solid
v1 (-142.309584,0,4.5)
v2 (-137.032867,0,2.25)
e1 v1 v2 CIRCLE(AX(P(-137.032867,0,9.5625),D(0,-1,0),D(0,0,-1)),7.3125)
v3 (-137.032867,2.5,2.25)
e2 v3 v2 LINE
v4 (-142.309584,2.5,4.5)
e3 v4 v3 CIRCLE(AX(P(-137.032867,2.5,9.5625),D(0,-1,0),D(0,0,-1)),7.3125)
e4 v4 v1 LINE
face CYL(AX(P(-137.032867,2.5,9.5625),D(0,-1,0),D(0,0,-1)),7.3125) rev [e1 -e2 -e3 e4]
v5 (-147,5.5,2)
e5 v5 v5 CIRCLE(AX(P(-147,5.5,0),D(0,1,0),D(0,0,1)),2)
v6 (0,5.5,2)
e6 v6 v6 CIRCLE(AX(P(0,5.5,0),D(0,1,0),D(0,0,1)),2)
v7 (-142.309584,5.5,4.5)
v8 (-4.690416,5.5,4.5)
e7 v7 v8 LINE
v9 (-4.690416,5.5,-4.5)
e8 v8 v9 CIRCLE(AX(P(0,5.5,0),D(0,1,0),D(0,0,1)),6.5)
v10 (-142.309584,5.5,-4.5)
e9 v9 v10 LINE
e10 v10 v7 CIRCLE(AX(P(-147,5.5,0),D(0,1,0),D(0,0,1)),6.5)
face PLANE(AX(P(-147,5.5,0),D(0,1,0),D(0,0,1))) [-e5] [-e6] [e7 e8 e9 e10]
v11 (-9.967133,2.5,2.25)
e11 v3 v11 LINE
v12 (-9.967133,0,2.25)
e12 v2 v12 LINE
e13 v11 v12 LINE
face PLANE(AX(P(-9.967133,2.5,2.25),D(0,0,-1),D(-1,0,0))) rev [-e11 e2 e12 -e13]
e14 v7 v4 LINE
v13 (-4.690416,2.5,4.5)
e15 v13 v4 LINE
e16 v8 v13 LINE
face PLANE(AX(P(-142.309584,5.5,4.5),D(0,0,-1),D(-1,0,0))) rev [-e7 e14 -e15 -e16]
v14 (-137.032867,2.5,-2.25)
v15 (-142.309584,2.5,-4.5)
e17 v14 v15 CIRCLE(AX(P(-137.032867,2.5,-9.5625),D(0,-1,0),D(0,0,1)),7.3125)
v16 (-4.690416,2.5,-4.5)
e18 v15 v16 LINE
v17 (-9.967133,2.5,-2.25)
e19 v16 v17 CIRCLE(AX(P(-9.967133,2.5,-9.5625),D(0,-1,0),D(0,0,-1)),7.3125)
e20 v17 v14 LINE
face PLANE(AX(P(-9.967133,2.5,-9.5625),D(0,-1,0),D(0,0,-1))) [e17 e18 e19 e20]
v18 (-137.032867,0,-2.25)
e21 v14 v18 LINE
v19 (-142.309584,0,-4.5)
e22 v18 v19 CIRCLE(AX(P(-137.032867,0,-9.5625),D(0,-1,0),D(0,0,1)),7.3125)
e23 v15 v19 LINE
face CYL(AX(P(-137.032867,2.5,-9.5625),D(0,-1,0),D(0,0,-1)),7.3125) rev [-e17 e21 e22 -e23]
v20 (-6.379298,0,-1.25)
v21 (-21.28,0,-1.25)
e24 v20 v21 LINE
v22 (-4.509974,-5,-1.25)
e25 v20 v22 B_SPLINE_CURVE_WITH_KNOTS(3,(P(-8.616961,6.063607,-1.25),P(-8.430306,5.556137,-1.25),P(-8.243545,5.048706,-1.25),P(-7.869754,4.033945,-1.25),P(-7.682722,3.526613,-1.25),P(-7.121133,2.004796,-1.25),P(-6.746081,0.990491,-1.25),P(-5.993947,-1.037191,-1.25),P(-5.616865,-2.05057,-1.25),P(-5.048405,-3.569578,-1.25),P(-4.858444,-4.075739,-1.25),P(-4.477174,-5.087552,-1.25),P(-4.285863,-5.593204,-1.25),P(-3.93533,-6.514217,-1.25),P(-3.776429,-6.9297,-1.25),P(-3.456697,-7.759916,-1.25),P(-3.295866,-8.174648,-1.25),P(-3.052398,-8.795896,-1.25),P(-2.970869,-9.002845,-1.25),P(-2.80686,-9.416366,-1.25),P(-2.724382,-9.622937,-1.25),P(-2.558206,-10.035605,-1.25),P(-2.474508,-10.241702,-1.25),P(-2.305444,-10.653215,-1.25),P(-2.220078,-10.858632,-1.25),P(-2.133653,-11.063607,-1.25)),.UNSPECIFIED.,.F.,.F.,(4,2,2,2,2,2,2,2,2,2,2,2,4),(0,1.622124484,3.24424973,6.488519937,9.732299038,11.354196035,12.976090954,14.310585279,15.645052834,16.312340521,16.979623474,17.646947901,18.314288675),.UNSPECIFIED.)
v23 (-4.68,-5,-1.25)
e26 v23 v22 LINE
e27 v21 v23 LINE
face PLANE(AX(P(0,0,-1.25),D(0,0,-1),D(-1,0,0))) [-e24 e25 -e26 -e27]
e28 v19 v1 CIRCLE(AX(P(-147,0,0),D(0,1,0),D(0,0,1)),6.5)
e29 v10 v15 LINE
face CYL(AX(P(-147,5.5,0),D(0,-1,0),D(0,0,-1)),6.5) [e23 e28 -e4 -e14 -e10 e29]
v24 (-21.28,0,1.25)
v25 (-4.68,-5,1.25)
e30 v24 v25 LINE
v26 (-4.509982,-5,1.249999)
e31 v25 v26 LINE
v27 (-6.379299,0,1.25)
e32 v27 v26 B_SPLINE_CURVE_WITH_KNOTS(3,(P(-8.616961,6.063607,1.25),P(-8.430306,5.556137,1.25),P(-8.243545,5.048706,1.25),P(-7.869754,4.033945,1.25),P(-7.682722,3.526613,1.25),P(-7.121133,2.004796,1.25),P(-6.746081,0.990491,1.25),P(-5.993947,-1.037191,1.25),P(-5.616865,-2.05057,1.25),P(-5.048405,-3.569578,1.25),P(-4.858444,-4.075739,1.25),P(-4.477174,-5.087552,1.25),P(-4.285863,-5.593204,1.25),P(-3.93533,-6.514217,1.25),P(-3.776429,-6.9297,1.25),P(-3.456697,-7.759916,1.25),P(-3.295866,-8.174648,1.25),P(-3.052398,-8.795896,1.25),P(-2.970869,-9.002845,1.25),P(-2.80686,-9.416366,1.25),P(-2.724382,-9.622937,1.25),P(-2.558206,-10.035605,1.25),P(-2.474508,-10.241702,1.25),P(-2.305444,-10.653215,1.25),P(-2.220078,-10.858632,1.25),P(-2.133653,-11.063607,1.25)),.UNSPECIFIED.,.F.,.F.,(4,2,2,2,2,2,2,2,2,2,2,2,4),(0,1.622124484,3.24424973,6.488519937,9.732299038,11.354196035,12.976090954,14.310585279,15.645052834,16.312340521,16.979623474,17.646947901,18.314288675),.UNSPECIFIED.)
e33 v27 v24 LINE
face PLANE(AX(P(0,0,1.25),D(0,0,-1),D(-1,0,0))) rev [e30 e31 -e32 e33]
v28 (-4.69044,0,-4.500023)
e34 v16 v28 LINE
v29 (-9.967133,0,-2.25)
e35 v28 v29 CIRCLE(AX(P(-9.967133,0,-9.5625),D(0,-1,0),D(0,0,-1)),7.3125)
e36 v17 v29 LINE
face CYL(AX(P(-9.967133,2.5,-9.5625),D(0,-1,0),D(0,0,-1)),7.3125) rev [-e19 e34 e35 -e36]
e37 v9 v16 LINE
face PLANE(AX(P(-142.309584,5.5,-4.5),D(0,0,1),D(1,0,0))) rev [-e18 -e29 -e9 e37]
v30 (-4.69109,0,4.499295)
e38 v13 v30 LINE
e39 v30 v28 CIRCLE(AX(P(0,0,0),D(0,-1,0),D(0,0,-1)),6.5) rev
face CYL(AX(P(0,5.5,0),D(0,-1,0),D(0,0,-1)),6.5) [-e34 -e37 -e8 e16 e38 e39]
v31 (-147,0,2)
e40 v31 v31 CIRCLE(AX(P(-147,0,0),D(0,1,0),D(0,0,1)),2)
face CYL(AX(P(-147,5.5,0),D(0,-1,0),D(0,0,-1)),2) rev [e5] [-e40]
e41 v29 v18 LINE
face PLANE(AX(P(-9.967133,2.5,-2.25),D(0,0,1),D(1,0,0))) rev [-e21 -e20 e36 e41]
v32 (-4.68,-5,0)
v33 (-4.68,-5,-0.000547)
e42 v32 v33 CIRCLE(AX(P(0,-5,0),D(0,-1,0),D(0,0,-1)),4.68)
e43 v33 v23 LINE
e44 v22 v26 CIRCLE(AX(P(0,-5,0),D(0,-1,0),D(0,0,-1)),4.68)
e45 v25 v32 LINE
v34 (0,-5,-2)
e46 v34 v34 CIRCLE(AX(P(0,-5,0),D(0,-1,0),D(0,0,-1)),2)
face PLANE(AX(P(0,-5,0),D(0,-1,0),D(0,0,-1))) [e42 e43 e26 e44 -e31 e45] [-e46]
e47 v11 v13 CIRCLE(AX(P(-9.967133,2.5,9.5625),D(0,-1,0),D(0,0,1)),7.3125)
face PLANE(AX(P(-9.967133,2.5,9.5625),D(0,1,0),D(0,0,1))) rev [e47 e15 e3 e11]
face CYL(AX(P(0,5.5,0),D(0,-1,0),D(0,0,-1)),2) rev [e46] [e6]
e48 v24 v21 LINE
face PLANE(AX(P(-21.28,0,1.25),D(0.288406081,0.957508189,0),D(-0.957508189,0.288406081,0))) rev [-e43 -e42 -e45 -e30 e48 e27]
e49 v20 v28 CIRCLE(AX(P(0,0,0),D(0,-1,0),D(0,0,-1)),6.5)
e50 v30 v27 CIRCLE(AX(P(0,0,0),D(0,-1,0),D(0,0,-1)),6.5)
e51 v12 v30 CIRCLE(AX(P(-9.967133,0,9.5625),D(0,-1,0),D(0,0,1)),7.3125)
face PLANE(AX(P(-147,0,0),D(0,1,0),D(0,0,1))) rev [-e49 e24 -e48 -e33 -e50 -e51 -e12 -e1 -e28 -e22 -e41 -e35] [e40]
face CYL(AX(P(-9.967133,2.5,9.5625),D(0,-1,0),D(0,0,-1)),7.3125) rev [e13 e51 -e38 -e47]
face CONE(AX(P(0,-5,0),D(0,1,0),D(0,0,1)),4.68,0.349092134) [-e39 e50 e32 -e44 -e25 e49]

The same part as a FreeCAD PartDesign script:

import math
import FreeCAD as App
import Part
import Sketcher
from FreeCAD import Vector
Q = App.Units.Quantity


def add_polygon(sketch, points):
    """Adds a closed chain of lines whose ends are joined by coincident constraints."""
    first, n = sketch.GeometryCount, len(points)
    for a, b in zip(points, points[1:] + points[:1]):
        sketch.addGeometry(Part.LineSegment(App.Vector(*a, 0), App.Vector(*b, 0)), False)
    for i in range(n):
        sketch.addConstraint(Sketcher.Constraint("Coincident", first + i, 2, first + (i + 1) % n, 1))

doc = App.newDocument("Part")
body = doc.addObject("PartDesign::Body", "Body")

sketch1 = body.newObject("Sketcher::SketchObject", "Sketch")
sketch1.AttachmentSupport = (doc.getObject("XZ_Plane"), [""])
sketch1.MapMode = "FlatFace"
sketch1.addGeometry(Part.LineSegment(Vector(-4.690416, -4.5, 0), Vector(-142.309584, -4.5, 0)), False)
sketch1.addGeometry(Part.ArcOfCircle(Part.Circle(Vector(-147, 0, 0), Vector(0, 0, 1), 6.5), math.radians(43.813061), math.radians(316.186939)), False)
sketch1.addGeometry(Part.LineSegment(Vector(-142.309584, 4.5, 0), Vector(-4.690416, 4.5, 0)), False)
sketch1.addGeometry(Part.ArcOfCircle(Part.Circle(Vector(0, 0, 0), Vector(0, 0, 1), 6.5), math.radians(-136.186939), math.radians(136.186939)), False)
sketch1.addGeometry(Part.Circle(Vector(0, 0, 0), Vector(0, 0, 1), 2), False)
sketch1.addGeometry(Part.Circle(Vector(-147, 0, 0), Vector(0, 0, 1), 2), False)
sketch1.addConstraint(Sketcher.Constraint("Coincident", 0, 2, 1, 2))
sketch1.addConstraint(Sketcher.Constraint("Coincident", 1, 1, 2, 1))
sketch1.addConstraint(Sketcher.Constraint("Coincident", 2, 2, 3, 2))
sketch1.addConstraint(Sketcher.Constraint("Coincident", 3, 1, 0, 1))
sketch1.addConstraint(Sketcher.Constraint("Horizontal", 0))
sketch1.addConstraint(Sketcher.Constraint("Horizontal", 2))
sketch1.addConstraint(Sketcher.Constraint("Coincident", 3, 3, -1, 1))
sketch1.addConstraint(Sketcher.Constraint("Coincident", 4, 3, -1, 1))
sketch1.addConstraint(Sketcher.Constraint("Coincident", 5, 3, 1, 3))
sketch1.addConstraint(Sketcher.Constraint("Equal", 1, 3))
sketch1.addConstraint(Sketcher.Constraint("Equal", 4, 5))
sketch1.addConstraint(Sketcher.Constraint("Symmetric", 0, 2, 1, 1, -1))
sketch1.addConstraint(Sketcher.Constraint("Diameter", 4, Q("4 mm")))
sketch1.addConstraint(Sketcher.Constraint("Radius", 1, Q("6.5 mm")))
sketch1.addConstraint(Sketcher.Constraint("DistanceX", 1, 3, -1, 1, Q("147 mm")))
sketch1.addConstraint(Sketcher.Constraint("DistanceY", 0, 2, 1, 1, Q("9 mm")))
pad1 = body.newObject("PartDesign::Pad", "Pad")
pad1.Profile = sketch1
pad1.Length = 5.5
pad1.Reversed = True

sketch2 = body.newObject("Sketcher::SketchObject", "Sketch001")
sketch2.AttachmentSupport = (doc.getObject("XZ_Plane"), [""])
sketch2.MapMode = "FlatFace"
sketch2.addGeometry(Part.LineSegment(Vector(-137.032867, 2.25, 0), Vector(-9.967133, 2.25, 0)), False)
sketch2.addGeometry(Part.ArcOfCircle(Part.Circle(Vector(-9.967133, 9.5625, 0), Vector(0, 0, 1), 7.3125), math.radians(-90), math.radians(-43.813061)), False)
sketch2.addGeometry(Part.LineSegment(Vector(-4.690416, 4.5, 0), Vector(-142.309584, 4.5, 0)), False)
sketch2.addGeometry(Part.ArcOfCircle(Part.Circle(Vector(-137.032867, 9.5625, 0), Vector(0, 0, 1), 7.3125), math.radians(-136.186939), math.radians(-90)), False)
sketch2.addGeometry(Part.LineSegment(Vector(-9.967133, -2.25, 0), Vector(-137.032867, -2.25, 0)), False)
sketch2.addGeometry(Part.ArcOfCircle(Part.Circle(Vector(-137.032867, -9.5625, 0), Vector(0, 0, 1), 7.3125), math.radians(90), math.radians(136.186939)), False)
sketch2.addGeometry(Part.LineSegment(Vector(-142.309584, -4.5, 0), Vector(-4.690416, -4.5, 0)), False)
sketch2.addGeometry(Part.ArcOfCircle(Part.Circle(Vector(-9.967133, -9.5625, 0), Vector(0, 0, 1), 7.3125), math.radians(43.813061), math.radians(90)), False)
sketch2.addConstraint(Sketcher.Constraint("Tangent", 0, 2, 1, 1))
sketch2.addConstraint(Sketcher.Constraint("Coincident", 1, 2, 2, 1))
sketch2.addConstraint(Sketcher.Constraint("Coincident", 2, 2, 3, 1))
sketch2.addConstraint(Sketcher.Constraint("Tangent", 3, 2, 0, 1))
sketch2.addConstraint(Sketcher.Constraint("Tangent", 4, 2, 5, 1))
sketch2.addConstraint(Sketcher.Constraint("Coincident", 5, 2, 6, 1))
sketch2.addConstraint(Sketcher.Constraint("Coincident", 6, 2, 7, 1))
sketch2.addConstraint(Sketcher.Constraint("Tangent", 7, 2, 4, 1))
sketch2.addConstraint(Sketcher.Constraint("Horizontal", 0))
sketch2.addConstraint(Sketcher.Constraint("Horizontal", 2))
sketch2.addConstraint(Sketcher.Constraint("Horizontal", 4))
sketch2.addConstraint(Sketcher.Constraint("Horizontal", 6))
sketch2.addConstraint(Sketcher.Constraint("Equal", 1, 3))
sketch2.addConstraint(Sketcher.Constraint("Equal", 3, 5))
sketch2.addConstraint(Sketcher.Constraint("Equal", 5, 7))
sketch2.addConstraint(Sketcher.Constraint("Symmetric", 3, 3, 5, 3, -1))
sketch2.addConstraint(Sketcher.Constraint("Symmetric", 1, 2, 6, 2, -1))
sketch2.addConstraint(Sketcher.Constraint("DistanceY", 5, 2, 2, 2, Q("9 mm")))
sketch2.addConstraint(Sketcher.Constraint("Radius", 1, Q("7.3125 mm")))
sketch2.addConstraint(Sketcher.Constraint("DistanceY", 4, 2, 3, 2, Q("4.5 mm")))
sketch2.addConstraint(Sketcher.Constraint("DistanceX", 2, 2, 2, 1, Q("137.619168 mm")))
sketch2.addConstraint(Sketcher.Constraint("DistanceX", 1, 3, -1, 1, Q("9.967133 mm")))
pocket1 = body.newObject("PartDesign::Pocket", "Pocket")
pocket1.Profile = sketch2
pocket1.Length = 2.5

sketch3 = body.newObject("Sketcher::SketchObject", "Sketch002")
sketch3.AttachmentSupport = (doc.getObject("XZ_Plane"), [""])
sketch3.MapMode = "FlatFace"
sketch3.addGeometry(Part.Circle(Vector(0, 0, 0), Vector(0, 0, 1), 6.5), False)
sketch3.addConstraint(Sketcher.Constraint("Coincident", 0, 3, -1, 1))
sketch3.addConstraint(Sketcher.Constraint("Diameter", 0, Q("13 mm")))

sketch4 = body.newObject("Sketcher::SketchObject", "Sketch003")
sketch4.AttachmentSupport = (doc.getObject("XZ_Plane"), [""])
sketch4.MapMode = "FlatFace"
sketch4.AttachmentOffset = App.Placement(Vector(0, 0, 5), App.Rotation())
sketch4.addGeometry(Part.Circle(Vector(0, 0, 0), Vector(0, 0, 1), 4.68), False)
sketch4.addConstraint(Sketcher.Constraint("Coincident", 0, 3, -1, 1))
sketch4.addConstraint(Sketcher.Constraint("Diameter", 0, Q("9.36 mm")))

additiveloft = body.newObject("PartDesign::AdditiveLoft", "AdditiveLoft")
additiveloft.Profile = sketch3
additiveloft.Sections = [sketch4]

sketch5 = body.newObject("Sketcher::SketchObject", "Sketch004")
sketch5.AttachmentSupport = (doc.getObject("XZ_Plane"), [""])
sketch5.MapMode = "FlatFace"
sketch5.AttachmentOffset = App.Placement(Vector(0, 0, 5), App.Rotation())
sketch5.addGeometry(Part.Circle(Vector(0, 0, 0), Vector(0, 0, 1), 2), False)
sketch5.addConstraint(Sketcher.Constraint("Coincident", 0, 3, -1, 1))
sketch5.addConstraint(Sketcher.Constraint("Diameter", 0, Q("4 mm")))
pocket2 = body.newObject("PartDesign::Pocket", "Pocket001")
pocket2.Profile = sketch5
pocket2.Type = "ThroughAll"

sketch6 = body.newObject("Sketcher::SketchObject", "Sketch005")
sketch6.AttachmentSupport = (doc.getObject("XY_Plane"), [""])
sketch6.MapMode = "FlatFace"
add_polygon(sketch6, [(-3.08, 0), (-21.28, 0), (-4.68, -5), (-3.08, -5)])
sketch6.addConstraint(Sketcher.Constraint("Horizontal", 0))
sketch6.addConstraint(Sketcher.Constraint("Horizontal", 2))
sketch6.addConstraint(Sketcher.Constraint("Vertical", 3))
sketch6.addConstraint(Sketcher.Constraint("PointOnObject", 0, 2, -1))
sketch6.addConstraint(Sketcher.Constraint("DistanceY", 3, 1, 3, 2, Q("5 mm")))
sketch6.addConstraint(Sketcher.Constraint("DistanceX", 0, 2, 0, 1, Q("18.2 mm")))
sketch6.addConstraint(Sketcher.Constraint("DistanceX", 2, 1, 2, 2, Q("1.6 mm")))
sketch6.addConstraint(Sketcher.Constraint("DistanceX", 0, 2, -1, 1, Q("21.28 mm")))
pad2 = body.newObject("PartDesign::Pad", "Pad001")
pad2.Profile = sketch6
pad2.Length = 2.5
pad2.Midplane = True

doc.recompute()
